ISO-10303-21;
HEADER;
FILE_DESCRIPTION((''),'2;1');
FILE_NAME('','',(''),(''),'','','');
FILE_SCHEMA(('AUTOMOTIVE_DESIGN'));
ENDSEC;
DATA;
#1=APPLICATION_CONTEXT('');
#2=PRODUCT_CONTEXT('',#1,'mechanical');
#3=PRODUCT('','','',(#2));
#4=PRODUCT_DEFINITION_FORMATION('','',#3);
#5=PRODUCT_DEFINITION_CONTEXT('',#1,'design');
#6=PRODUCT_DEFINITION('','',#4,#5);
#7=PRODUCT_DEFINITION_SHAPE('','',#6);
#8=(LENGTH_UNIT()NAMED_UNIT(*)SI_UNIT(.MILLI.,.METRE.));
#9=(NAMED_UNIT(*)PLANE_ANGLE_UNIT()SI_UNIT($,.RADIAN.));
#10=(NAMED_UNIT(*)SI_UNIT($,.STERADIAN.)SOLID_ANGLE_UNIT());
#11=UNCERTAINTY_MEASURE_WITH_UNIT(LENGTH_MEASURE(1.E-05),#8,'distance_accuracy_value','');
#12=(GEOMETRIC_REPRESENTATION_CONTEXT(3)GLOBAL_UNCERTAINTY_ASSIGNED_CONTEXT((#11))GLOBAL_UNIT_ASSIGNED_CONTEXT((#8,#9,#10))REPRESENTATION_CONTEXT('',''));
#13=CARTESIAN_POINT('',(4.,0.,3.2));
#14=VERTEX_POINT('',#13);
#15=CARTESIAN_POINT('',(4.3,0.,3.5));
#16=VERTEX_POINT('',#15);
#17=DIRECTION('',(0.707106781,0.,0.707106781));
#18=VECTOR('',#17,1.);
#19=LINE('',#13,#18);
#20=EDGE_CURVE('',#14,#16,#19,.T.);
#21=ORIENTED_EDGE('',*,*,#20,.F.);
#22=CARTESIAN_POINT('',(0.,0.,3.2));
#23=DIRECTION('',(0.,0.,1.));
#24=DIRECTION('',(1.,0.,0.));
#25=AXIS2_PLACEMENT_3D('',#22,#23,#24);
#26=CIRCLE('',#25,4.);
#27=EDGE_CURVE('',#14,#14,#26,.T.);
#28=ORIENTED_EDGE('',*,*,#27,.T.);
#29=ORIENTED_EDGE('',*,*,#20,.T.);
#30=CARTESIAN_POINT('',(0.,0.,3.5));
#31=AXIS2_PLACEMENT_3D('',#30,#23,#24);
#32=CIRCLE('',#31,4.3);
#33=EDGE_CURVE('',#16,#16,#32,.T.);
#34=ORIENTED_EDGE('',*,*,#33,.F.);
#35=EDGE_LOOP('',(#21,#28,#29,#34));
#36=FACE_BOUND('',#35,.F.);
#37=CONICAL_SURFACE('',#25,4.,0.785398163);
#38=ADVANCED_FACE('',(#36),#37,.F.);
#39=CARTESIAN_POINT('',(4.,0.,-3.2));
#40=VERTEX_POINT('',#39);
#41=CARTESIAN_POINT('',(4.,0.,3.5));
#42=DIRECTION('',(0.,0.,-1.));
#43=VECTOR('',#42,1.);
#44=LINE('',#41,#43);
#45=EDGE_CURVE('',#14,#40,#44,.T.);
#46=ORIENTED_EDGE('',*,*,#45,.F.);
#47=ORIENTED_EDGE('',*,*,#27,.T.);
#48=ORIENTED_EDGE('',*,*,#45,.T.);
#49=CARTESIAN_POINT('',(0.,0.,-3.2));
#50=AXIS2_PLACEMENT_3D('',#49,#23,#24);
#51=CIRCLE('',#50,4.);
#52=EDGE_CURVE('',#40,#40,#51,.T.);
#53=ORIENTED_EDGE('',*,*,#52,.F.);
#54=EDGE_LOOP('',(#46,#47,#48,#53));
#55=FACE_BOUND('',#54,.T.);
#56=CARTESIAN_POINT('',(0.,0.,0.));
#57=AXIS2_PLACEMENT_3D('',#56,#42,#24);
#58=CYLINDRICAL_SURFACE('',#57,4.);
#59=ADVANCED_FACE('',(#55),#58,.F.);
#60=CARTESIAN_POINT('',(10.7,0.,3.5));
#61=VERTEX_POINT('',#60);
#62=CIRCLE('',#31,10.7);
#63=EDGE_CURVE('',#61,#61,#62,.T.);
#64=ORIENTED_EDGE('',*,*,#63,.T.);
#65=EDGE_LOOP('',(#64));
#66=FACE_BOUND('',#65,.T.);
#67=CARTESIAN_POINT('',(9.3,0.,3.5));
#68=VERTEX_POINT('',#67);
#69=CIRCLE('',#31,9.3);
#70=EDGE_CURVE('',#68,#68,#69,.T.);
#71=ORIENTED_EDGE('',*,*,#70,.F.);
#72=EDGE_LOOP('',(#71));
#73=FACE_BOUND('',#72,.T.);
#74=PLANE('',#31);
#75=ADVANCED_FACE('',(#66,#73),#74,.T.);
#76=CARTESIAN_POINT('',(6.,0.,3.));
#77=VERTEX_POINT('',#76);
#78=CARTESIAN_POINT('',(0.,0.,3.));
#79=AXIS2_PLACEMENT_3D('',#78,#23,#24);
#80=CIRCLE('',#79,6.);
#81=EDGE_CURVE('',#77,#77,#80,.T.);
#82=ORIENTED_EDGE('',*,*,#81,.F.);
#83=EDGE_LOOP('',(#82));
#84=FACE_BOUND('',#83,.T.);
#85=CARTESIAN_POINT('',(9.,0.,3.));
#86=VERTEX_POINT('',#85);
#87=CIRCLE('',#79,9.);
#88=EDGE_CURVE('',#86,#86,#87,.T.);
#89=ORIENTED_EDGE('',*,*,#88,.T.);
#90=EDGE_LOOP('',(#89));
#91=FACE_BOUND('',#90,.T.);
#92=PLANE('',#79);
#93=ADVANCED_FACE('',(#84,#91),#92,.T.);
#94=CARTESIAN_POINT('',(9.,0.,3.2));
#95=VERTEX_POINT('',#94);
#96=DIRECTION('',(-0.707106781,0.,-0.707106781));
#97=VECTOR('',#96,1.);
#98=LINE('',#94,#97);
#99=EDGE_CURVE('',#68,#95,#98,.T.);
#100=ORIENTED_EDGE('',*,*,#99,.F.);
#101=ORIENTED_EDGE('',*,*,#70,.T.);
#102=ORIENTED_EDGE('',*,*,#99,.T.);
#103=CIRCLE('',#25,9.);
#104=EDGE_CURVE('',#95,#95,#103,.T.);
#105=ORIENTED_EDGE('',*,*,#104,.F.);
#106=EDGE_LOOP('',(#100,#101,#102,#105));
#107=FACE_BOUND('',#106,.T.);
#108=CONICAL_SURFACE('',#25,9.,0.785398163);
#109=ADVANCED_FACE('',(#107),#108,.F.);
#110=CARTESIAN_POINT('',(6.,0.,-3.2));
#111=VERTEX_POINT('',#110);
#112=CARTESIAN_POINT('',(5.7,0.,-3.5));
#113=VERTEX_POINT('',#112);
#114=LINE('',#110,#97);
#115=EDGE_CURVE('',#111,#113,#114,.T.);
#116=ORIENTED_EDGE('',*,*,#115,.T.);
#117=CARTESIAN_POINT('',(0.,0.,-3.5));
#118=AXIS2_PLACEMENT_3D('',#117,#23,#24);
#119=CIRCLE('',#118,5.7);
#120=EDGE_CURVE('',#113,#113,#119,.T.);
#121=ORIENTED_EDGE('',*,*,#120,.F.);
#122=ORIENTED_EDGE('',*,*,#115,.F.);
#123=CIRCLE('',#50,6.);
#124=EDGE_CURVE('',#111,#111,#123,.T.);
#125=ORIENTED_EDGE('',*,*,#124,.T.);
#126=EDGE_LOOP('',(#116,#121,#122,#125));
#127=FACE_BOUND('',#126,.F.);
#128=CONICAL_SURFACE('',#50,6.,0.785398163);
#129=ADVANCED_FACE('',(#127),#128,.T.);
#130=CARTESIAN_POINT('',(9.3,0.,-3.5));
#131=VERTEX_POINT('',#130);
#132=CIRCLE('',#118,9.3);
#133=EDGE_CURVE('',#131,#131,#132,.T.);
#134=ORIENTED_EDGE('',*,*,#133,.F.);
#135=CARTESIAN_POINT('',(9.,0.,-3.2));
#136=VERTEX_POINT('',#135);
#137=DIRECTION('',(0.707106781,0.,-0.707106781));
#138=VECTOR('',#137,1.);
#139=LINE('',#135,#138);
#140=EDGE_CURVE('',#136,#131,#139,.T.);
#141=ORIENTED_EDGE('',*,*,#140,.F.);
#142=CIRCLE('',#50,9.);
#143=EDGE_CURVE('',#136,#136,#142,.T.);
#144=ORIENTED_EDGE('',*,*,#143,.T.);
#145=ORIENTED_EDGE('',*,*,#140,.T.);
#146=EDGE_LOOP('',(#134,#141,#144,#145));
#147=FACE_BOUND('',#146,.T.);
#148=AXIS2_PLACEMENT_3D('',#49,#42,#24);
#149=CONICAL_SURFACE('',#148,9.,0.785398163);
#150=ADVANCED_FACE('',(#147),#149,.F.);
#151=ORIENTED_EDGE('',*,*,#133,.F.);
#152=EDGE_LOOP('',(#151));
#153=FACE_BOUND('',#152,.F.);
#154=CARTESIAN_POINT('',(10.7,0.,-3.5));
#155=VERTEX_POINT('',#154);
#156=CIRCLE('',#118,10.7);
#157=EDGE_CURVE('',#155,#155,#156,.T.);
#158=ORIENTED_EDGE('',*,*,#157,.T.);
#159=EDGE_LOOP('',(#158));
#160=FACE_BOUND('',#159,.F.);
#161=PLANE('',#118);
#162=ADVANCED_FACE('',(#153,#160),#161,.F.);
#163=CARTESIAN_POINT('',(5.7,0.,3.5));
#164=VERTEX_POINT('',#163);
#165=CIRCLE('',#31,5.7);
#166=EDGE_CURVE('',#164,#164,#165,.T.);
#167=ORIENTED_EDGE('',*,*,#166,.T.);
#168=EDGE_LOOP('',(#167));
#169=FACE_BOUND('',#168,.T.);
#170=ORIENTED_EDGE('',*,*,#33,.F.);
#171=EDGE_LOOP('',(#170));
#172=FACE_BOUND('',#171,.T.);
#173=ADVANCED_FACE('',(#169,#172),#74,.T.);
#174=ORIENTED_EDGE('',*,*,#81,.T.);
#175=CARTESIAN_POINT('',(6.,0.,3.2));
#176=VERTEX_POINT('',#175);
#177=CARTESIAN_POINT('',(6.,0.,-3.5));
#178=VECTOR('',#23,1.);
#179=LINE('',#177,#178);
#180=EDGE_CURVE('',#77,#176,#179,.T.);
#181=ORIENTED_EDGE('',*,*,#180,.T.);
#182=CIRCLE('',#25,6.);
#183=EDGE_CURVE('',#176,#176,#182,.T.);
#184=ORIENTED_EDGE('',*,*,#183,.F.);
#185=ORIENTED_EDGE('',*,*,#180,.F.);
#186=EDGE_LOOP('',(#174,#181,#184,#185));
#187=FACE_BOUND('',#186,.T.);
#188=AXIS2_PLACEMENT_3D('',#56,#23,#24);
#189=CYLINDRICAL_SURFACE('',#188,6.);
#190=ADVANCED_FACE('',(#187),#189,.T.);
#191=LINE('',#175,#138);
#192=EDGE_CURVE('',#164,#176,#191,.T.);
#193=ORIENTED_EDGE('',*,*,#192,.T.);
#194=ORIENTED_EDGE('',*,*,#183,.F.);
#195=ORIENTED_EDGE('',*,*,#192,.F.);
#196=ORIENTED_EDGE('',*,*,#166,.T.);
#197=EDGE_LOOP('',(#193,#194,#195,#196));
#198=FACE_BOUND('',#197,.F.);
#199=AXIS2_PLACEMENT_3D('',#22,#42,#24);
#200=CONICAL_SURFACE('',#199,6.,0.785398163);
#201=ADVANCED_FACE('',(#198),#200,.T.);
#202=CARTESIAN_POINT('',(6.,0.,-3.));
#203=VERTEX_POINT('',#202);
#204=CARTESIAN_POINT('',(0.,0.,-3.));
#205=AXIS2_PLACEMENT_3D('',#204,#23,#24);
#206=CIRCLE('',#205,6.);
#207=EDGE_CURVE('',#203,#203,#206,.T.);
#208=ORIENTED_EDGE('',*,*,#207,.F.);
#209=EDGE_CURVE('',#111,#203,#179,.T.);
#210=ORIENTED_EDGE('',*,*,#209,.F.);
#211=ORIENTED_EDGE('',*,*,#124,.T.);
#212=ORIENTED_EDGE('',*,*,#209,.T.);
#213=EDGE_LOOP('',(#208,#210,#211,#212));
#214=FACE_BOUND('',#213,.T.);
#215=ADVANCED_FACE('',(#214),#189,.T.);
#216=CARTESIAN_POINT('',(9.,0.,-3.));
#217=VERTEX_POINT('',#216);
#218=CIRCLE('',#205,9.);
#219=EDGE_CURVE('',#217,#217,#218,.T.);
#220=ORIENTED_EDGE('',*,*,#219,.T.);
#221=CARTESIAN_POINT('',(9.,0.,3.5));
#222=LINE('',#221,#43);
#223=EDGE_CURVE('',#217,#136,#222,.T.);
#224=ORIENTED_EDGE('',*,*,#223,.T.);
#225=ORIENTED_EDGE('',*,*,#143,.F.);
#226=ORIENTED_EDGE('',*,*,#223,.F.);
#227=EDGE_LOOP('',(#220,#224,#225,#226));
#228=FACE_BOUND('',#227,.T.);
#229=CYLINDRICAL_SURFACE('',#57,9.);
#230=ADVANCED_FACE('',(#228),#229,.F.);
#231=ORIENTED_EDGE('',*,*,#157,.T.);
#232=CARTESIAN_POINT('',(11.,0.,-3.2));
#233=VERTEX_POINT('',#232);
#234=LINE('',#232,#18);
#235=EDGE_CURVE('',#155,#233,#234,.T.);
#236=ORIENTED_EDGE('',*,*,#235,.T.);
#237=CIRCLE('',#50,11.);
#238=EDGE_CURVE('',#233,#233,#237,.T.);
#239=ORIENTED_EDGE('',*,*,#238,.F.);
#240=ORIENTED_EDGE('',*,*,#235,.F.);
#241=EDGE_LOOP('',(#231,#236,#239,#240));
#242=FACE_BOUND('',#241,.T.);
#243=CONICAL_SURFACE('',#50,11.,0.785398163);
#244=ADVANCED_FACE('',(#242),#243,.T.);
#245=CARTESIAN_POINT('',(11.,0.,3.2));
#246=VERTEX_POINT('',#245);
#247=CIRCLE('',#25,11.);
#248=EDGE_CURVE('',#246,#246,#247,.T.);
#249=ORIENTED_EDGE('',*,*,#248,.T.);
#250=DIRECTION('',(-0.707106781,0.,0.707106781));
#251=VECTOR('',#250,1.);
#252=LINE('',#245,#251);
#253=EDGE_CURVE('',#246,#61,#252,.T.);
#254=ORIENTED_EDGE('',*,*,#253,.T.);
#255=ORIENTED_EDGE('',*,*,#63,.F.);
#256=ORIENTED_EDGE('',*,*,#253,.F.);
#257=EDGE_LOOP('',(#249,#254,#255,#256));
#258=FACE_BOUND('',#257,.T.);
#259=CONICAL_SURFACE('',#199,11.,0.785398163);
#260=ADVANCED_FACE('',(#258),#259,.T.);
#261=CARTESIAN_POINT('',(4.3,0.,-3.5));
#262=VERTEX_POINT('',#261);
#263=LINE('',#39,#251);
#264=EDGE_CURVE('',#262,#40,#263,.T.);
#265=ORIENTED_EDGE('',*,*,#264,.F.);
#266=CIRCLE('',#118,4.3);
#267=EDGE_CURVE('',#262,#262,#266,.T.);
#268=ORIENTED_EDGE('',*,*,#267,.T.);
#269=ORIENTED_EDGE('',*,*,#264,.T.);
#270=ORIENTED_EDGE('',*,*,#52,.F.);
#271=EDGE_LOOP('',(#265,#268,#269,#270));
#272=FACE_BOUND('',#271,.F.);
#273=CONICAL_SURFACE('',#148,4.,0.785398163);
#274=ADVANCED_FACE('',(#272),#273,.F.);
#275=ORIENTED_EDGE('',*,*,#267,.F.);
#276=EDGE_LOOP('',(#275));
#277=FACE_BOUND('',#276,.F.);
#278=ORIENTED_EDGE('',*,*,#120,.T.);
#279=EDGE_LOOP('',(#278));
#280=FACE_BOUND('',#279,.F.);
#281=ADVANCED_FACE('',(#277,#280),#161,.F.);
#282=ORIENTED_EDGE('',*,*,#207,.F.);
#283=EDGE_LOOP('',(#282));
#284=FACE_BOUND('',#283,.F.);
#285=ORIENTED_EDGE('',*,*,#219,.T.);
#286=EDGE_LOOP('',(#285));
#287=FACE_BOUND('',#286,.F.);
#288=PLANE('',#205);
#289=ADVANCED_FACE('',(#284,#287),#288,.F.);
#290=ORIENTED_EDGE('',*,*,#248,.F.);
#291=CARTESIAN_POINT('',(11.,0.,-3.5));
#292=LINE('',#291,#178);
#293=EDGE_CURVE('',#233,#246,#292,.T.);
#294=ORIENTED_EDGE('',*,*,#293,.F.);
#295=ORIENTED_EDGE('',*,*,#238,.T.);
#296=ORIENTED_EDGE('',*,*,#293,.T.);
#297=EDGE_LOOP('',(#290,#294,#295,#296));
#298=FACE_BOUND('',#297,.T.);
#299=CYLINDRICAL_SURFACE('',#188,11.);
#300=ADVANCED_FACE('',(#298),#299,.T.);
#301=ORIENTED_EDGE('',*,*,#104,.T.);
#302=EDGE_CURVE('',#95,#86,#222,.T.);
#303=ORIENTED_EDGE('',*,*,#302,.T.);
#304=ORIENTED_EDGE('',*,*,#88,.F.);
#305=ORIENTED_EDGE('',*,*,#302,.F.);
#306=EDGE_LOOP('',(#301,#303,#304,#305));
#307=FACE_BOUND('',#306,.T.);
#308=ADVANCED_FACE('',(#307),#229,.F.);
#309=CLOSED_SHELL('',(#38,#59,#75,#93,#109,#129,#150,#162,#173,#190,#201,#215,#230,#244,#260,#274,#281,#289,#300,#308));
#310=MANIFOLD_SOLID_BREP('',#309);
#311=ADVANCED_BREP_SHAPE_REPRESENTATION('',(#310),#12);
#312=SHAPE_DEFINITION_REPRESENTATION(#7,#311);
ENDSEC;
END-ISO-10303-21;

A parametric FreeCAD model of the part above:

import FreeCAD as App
import Part
import Sketcher
Q = App.Units.Quantity


def edges_at(feature, points):
    """Names of the edges that pass closest to the given points."""
    edges = feature.Shape.Edges
    near = lambda p: min(range(len(edges)), key=lambda i: edges[i].distToShape(Part.Vertex(*p))[0])
    return sorted({f"Edge{near(p) + 1}" for p in points})

doc = App.newDocument("Part")
body = doc.addObject("PartDesign::Body", "Body")

sketch1 = body.newObject("Sketcher::SketchObject", "Sketch")
sketch1.AttachmentSupport = (doc.getObject("XY_Plane"), [""])
sketch1.MapMode = "FlatFace"
sketch1.addGeometry(Part.Circle(App.Vector(0, 0, 0), App.Vector(0, 0, 1), 11), False)
sketch1.addGeometry(Part.Circle(App.Vector(0, 0, 0), App.Vector(0, 0, 1), 9), False)
sketch1.addConstraint(Sketcher.Constraint("Coincident", 0, 3, -1, 1))
sketch1.addConstraint(Sketcher.Constraint("Coincident", 1, 3, -1, 1))
sketch1.addConstraint(Sketcher.Constraint("Diameter", 0, Q("22 mm")))
sketch1.addConstraint(Sketcher.Constraint("Diameter", 1, Q("18 mm")))
pad1 = body.newObject("PartDesign::Pad", "Pad")
pad1.Profile = sketch1
pad1.Length = 7
pad1.Midplane = True
body2 = doc.addObject("PartDesign::Body", "Body001")

sketch2 = body2.newObject("Sketcher::SketchObject", "Sketch001")
sketch2.AttachmentSupport = (doc.getObject("XY_Plane001"), [""])
sketch2.MapMode = "FlatFace"
sketch2.addGeometry(Part.Circle(App.Vector(0, 0, 0), App.Vector(0, 0, 1), 6), False)
sketch2.addGeometry(Part.Circle(App.Vector(0, 0, 0), App.Vector(0, 0, 1), 4), False)
sketch2.addConstraint(Sketcher.Constraint("Coincident", 0, 3, -1, 1))
sketch2.addConstraint(Sketcher.Constraint("Coincident", 1, 3, -1, 1))
sketch2.addConstraint(Sketcher.Constraint("Diameter", 0, Q("12 mm")))
sketch2.addConstraint(Sketcher.Constraint("Diameter", 1, Q("8 mm")))
pad2 = body2.newObject("PartDesign::Pad", "Pad001")
pad2.Profile = sketch2
pad2.Length = 7
pad2.Midplane = True
body.AllowCompound = True
doc.recompute()

boolean = body.newObject("PartDesign::Boolean", "Boolean")
boolean.Type = "Fuse"
boolean.addObjects([body2])

sketch3 = body.newObject("Sketcher::SketchObject", "Sketch002")
sketch3.AttachmentSupport = (doc.getObject("XY_Plane"), [""])
sketch3.MapMode = "FlatFace"
sketch3.addGeometry(Part.Circle(App.Vector(0, 0, 0), App.Vector(0, 0, 1), 9), False)
sketch3.addGeometry(Part.Circle(App.Vector(0, 0, 0), App.Vector(0, 0, 1), 6), False)
sketch3.addConstraint(Sketcher.Constraint("Coincident", 0, 3, -1, 1))
sketch3.addConstraint(Sketcher.Constraint("Coincident", 1, 3, -1, 1))
sketch3.addConstraint(Sketcher.Constraint("Diameter", 0, Q("18 mm")))
sketch3.addConstraint(Sketcher.Constraint("Diameter", 1, Q("12 mm")))
pad3 = body.newObject("PartDesign::Pad", "Pad002")
pad3.Profile = sketch3
pad3.Length = 6
pad3.Midplane = True
doc.recompute()

chamfer = body.newObject("PartDesign::Chamfer", "Chamfer")
chamfer.Base = (pad3, edges_at(pad3, [
    (-11, 0, 3.5),
    (-4, 0, 3.5),
    (-9, 0, 3.5),
    (-6, 0, 3.5),
    (-11, 0, -3.5),
    (-9, 0, -3.5),
    (-6, 0, -3.5),
    (-4, 0, -3.5),
]))
chamfer.Size = 0.3

doc.recompute()
